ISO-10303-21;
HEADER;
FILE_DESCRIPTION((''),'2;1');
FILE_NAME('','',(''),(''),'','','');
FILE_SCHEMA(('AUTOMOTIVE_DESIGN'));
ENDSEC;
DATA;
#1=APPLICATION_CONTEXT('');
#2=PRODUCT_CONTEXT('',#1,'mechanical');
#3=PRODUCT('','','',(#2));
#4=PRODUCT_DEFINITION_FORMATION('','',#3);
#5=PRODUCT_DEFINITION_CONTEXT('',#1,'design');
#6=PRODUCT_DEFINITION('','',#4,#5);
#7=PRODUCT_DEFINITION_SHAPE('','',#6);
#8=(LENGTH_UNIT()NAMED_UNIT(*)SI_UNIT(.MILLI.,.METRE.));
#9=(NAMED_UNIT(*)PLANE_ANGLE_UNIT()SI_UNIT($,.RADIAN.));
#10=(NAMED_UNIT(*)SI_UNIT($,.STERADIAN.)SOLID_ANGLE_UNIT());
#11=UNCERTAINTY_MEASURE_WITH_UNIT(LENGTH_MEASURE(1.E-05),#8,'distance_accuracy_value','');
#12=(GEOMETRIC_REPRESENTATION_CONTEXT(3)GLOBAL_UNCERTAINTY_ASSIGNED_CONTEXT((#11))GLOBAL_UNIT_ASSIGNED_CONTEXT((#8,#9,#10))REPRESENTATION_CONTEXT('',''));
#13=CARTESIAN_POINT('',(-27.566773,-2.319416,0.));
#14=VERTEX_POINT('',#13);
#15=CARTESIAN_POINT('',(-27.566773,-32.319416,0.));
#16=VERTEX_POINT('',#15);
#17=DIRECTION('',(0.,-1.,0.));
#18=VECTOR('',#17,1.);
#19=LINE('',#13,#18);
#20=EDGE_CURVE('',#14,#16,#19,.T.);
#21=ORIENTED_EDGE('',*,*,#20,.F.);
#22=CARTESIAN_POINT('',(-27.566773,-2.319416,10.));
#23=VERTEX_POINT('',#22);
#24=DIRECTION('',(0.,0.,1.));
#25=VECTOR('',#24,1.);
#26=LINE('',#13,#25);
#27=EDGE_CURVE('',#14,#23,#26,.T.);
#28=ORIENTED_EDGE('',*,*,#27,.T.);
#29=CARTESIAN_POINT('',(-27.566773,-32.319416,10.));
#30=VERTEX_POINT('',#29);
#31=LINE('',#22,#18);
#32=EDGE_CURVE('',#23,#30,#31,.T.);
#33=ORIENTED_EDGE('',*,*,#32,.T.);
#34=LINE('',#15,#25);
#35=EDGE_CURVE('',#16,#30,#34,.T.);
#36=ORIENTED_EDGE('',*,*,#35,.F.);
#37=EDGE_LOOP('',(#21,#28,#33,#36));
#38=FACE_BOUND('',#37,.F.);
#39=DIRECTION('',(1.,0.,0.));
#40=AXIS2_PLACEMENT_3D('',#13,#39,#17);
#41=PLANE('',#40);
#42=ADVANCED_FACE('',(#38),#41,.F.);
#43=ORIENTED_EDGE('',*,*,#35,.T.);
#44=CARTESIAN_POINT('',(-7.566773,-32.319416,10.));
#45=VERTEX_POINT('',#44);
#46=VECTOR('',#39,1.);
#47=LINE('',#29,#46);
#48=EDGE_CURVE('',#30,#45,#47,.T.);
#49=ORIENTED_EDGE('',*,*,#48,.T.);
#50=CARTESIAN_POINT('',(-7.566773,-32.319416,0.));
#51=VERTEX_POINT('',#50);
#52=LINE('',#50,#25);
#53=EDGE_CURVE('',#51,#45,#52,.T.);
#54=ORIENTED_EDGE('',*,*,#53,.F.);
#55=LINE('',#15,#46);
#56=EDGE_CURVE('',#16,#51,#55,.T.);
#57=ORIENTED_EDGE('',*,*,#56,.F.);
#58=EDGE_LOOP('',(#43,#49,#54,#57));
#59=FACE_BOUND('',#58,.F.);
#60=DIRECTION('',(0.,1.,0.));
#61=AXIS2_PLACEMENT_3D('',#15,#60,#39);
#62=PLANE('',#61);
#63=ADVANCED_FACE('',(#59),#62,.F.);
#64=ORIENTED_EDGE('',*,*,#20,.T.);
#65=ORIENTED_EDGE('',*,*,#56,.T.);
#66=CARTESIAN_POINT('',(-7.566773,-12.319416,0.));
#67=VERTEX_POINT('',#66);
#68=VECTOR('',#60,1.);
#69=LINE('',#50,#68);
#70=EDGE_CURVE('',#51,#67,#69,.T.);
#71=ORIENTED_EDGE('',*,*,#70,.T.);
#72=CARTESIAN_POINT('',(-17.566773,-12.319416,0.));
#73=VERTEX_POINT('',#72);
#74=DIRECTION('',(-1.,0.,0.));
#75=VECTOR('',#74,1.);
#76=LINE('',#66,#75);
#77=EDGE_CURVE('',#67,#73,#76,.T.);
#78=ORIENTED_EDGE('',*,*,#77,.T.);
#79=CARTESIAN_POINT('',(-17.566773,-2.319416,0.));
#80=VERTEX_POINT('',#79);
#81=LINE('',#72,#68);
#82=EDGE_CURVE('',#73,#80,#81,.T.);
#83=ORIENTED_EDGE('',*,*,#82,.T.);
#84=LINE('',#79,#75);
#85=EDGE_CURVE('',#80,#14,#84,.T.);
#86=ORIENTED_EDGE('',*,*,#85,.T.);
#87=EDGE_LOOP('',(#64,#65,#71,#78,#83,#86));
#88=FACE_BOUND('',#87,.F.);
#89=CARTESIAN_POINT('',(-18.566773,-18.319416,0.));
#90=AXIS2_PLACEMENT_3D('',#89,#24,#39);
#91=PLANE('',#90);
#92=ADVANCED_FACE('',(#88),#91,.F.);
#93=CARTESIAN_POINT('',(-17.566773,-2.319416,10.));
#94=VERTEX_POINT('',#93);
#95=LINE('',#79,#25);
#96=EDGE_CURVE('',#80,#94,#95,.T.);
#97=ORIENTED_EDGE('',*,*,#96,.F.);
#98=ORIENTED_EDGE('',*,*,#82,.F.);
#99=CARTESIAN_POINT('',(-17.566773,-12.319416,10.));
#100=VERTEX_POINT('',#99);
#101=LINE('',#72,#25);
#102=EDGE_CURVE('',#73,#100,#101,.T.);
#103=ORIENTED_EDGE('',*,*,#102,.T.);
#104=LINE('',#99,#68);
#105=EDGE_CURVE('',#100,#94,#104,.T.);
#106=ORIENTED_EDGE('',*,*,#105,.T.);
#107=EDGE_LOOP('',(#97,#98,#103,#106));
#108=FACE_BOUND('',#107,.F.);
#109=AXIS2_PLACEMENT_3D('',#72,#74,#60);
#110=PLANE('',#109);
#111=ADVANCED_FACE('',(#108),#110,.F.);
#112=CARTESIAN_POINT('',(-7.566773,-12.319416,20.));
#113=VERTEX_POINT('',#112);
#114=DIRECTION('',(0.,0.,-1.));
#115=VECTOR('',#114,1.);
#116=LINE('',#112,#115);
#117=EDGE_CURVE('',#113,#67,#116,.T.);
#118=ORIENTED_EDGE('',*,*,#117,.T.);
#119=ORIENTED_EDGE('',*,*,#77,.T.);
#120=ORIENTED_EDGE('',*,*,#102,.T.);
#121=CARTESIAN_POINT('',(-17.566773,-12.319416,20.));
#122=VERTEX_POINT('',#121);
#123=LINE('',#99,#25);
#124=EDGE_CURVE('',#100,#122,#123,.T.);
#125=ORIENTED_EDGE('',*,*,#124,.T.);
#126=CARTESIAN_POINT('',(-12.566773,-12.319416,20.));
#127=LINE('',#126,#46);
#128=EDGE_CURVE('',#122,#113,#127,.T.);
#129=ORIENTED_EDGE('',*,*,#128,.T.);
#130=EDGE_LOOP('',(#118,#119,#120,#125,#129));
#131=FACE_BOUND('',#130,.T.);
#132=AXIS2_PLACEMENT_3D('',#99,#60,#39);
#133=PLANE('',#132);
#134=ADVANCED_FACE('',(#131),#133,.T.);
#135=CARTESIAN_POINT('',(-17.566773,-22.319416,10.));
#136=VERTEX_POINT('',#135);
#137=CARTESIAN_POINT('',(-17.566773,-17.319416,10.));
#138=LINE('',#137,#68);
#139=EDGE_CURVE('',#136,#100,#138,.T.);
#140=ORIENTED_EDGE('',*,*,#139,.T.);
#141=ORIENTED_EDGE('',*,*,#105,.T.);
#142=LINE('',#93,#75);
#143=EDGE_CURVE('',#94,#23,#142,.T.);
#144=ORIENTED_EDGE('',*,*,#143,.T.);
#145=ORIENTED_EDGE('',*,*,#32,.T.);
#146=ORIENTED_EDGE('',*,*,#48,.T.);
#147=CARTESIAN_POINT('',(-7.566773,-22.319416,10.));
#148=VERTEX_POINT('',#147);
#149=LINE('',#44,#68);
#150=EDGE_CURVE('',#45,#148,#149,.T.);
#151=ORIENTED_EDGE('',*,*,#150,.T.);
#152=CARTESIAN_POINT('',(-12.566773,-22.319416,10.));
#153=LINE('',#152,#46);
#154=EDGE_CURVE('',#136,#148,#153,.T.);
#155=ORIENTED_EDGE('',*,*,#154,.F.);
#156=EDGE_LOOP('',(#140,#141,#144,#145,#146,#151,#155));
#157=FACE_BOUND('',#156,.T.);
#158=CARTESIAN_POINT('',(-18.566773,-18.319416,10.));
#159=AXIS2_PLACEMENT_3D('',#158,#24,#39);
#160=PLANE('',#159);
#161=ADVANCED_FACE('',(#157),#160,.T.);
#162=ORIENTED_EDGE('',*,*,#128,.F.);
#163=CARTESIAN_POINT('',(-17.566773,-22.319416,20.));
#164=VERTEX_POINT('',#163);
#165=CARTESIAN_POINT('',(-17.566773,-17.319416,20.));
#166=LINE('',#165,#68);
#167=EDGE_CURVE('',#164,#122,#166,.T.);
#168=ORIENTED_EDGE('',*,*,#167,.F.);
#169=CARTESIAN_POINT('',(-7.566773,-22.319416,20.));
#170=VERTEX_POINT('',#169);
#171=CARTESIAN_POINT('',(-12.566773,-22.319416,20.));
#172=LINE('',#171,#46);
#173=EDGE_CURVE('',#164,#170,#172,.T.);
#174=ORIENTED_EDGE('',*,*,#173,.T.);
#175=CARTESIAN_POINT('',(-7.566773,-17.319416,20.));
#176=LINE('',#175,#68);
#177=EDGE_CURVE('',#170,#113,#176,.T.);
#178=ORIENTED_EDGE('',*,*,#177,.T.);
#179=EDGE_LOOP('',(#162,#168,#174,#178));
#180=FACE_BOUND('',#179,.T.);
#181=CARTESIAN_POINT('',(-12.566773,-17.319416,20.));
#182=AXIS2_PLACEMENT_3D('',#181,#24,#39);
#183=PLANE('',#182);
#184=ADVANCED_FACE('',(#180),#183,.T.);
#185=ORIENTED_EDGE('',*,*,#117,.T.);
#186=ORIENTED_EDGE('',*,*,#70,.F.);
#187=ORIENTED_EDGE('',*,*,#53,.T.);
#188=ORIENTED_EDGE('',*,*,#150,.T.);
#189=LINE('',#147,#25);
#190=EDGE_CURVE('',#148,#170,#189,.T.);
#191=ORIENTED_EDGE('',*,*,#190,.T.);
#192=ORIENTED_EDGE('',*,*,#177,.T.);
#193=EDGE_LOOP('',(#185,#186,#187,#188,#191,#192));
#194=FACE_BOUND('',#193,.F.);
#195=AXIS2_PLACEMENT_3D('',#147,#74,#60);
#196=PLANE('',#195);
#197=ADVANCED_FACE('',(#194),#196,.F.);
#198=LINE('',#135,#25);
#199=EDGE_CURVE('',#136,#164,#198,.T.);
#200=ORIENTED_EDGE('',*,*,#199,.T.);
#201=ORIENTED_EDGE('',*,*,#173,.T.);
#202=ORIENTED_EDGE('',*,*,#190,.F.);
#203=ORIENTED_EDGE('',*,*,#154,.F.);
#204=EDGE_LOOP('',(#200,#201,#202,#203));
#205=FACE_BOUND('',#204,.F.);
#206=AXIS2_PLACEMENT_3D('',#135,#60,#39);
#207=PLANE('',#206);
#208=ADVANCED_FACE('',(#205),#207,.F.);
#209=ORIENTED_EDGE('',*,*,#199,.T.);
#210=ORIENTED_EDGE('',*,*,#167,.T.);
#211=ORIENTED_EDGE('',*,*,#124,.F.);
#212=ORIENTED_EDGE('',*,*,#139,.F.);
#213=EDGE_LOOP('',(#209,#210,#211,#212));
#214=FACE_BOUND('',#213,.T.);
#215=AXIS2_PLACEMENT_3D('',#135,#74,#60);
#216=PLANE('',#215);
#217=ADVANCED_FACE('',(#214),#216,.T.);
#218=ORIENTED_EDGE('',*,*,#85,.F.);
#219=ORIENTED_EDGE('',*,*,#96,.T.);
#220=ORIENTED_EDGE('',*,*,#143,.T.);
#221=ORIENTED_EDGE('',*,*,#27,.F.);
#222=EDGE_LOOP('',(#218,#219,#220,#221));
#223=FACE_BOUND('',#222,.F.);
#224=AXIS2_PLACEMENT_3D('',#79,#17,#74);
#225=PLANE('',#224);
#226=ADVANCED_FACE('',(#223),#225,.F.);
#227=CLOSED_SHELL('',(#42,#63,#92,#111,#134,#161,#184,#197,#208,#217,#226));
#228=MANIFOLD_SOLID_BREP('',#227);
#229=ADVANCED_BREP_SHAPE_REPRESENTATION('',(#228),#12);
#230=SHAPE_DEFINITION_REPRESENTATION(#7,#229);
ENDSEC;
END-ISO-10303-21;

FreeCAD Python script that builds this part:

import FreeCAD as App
import Part
import Sketcher
from FreeCAD import Vector

doc = App.newDocument("Part")
body = doc.addObject("PartDesign::Body", "Body")

sketch1 = body.newObject("Sketcher::SketchObject", "Sketch")
sketch1.AttachmentSupport = (doc.getObject("XY_Plane"), [""])
sketch1.MapMode = "FlatFace"
sketch1.addGeometry([
    Part.LineSegment(Vector(-28, -2, 0), Vector(-28, -32, 0)),
    Part.LineSegment(Vector(-28, -32, 0), Vector(-8, -32, 0)),
    Part.LineSegment(Vector(-8, -32, 0), Vector(-8, -12, 0)),
    Part.LineSegment(Vector(-8, -12, 0), Vector(-18, -12, 0)),
    Part.LineSegment(Vector(-18, -12, 0), Vector(-18, -2, 0)),
    Part.LineSegment(Vector(-18, -2, 0), Vector(-28, -2, 0)),
], False)
sketch1.addConstraint([
    Sketcher.Constraint("Coincident", 0, 2, 1, 1),
    Sketcher.Constraint("Coincident", 1, 2, 2, 1),
    Sketcher.Constraint("Coincident", 2, 2, 3, 1),
    Sketcher.Constraint("Coincident", 3, 2, 4, 1),
    Sketcher.Constraint("Coincident", 4, 2, 5, 1),
    Sketcher.Constraint("Coincident", 5, 2, 0, 1),
    Sketcher.Constraint("Vertical", 0),
    Sketcher.Constraint("Horizontal", 1),
    Sketcher.Constraint("Vertical", 2),
    Sketcher.Constraint("Horizontal", 3),
    Sketcher.Constraint("Vertical", 4),
    Sketcher.Constraint("Horizontal", 5),
    Sketcher.Constraint("Equal", 3, 5),
    Sketcher.Constraint("Equal", 1, 2),
    Sketcher.Constraint("Equal", 5, 4),
    Sketcher.Constraint("DistanceX", 1, 1, 1, 2, 20.0),
    Sketcher.Constraint("DistanceX", 0, 2, -1, 1, 27.566773),
    Sketcher.Constraint("DistanceY", 0, 2, -1, 1, 32.319416),
])
pad1 = body.newObject("PartDesign::Pad", "Pad")
pad1.Profile = sketch1
pad1.Length = 10

sketch2 = body.newObject("Sketcher::SketchObject", "Sketch001")
sketch2.AttachmentSupport = (doc.getObject("XY_Plane"), [""])
sketch2.MapMode = "FlatFace"
sketch2.AttachmentOffset = App.Placement(Vector(0, 0, 10), App.Rotation())
sketch2.addGeometry([
    Part.LineSegment(Vector(-18, -12, 0), Vector(-18, -22, 0)),
    Part.LineSegment(Vector(-18, -22, 0), Vector(-8, -22, 0)),
    Part.LineSegment(Vector(-8, -22, 0), Vector(-8, -12, 0)),
    Part.LineSegment(Vector(-8, -12, 0), Vector(-18, -12, 0)),
], False)
sketch2.addConstraint([
    Sketcher.Constraint("Coincident", 0, 2, 1, 1),
    Sketcher.Constraint("Coincident", 1, 2, 2, 1),
    Sketcher.Constraint("Coincident", 2, 2, 3, 1),
    Sketcher.Constraint("Coincident", 3, 2, 0, 1),
    Sketcher.Constraint("Vertical", 0),
    Sketcher.Constraint("Horizontal", 1),
    Sketcher.Constraint("Vertical", 2),
    Sketcher.Constraint("Horizontal", 3),
    Sketcher.Constraint("Equal", 3, 0),
    Sketcher.Constraint("DistanceX", 1, 1, 1, 2, 10.0),
    Sketcher.Constraint("DistanceX", 0, 2, -1, 1, 17.566773),
    Sketcher.Constraint("DistanceY", 0, 2, -1, 1, 22.319416),
])
pad2 = body.newObject("PartDesign::Pad", "Pad001")
pad2.Profile = sketch2
pad2.Length = 10

doc.recompute()
